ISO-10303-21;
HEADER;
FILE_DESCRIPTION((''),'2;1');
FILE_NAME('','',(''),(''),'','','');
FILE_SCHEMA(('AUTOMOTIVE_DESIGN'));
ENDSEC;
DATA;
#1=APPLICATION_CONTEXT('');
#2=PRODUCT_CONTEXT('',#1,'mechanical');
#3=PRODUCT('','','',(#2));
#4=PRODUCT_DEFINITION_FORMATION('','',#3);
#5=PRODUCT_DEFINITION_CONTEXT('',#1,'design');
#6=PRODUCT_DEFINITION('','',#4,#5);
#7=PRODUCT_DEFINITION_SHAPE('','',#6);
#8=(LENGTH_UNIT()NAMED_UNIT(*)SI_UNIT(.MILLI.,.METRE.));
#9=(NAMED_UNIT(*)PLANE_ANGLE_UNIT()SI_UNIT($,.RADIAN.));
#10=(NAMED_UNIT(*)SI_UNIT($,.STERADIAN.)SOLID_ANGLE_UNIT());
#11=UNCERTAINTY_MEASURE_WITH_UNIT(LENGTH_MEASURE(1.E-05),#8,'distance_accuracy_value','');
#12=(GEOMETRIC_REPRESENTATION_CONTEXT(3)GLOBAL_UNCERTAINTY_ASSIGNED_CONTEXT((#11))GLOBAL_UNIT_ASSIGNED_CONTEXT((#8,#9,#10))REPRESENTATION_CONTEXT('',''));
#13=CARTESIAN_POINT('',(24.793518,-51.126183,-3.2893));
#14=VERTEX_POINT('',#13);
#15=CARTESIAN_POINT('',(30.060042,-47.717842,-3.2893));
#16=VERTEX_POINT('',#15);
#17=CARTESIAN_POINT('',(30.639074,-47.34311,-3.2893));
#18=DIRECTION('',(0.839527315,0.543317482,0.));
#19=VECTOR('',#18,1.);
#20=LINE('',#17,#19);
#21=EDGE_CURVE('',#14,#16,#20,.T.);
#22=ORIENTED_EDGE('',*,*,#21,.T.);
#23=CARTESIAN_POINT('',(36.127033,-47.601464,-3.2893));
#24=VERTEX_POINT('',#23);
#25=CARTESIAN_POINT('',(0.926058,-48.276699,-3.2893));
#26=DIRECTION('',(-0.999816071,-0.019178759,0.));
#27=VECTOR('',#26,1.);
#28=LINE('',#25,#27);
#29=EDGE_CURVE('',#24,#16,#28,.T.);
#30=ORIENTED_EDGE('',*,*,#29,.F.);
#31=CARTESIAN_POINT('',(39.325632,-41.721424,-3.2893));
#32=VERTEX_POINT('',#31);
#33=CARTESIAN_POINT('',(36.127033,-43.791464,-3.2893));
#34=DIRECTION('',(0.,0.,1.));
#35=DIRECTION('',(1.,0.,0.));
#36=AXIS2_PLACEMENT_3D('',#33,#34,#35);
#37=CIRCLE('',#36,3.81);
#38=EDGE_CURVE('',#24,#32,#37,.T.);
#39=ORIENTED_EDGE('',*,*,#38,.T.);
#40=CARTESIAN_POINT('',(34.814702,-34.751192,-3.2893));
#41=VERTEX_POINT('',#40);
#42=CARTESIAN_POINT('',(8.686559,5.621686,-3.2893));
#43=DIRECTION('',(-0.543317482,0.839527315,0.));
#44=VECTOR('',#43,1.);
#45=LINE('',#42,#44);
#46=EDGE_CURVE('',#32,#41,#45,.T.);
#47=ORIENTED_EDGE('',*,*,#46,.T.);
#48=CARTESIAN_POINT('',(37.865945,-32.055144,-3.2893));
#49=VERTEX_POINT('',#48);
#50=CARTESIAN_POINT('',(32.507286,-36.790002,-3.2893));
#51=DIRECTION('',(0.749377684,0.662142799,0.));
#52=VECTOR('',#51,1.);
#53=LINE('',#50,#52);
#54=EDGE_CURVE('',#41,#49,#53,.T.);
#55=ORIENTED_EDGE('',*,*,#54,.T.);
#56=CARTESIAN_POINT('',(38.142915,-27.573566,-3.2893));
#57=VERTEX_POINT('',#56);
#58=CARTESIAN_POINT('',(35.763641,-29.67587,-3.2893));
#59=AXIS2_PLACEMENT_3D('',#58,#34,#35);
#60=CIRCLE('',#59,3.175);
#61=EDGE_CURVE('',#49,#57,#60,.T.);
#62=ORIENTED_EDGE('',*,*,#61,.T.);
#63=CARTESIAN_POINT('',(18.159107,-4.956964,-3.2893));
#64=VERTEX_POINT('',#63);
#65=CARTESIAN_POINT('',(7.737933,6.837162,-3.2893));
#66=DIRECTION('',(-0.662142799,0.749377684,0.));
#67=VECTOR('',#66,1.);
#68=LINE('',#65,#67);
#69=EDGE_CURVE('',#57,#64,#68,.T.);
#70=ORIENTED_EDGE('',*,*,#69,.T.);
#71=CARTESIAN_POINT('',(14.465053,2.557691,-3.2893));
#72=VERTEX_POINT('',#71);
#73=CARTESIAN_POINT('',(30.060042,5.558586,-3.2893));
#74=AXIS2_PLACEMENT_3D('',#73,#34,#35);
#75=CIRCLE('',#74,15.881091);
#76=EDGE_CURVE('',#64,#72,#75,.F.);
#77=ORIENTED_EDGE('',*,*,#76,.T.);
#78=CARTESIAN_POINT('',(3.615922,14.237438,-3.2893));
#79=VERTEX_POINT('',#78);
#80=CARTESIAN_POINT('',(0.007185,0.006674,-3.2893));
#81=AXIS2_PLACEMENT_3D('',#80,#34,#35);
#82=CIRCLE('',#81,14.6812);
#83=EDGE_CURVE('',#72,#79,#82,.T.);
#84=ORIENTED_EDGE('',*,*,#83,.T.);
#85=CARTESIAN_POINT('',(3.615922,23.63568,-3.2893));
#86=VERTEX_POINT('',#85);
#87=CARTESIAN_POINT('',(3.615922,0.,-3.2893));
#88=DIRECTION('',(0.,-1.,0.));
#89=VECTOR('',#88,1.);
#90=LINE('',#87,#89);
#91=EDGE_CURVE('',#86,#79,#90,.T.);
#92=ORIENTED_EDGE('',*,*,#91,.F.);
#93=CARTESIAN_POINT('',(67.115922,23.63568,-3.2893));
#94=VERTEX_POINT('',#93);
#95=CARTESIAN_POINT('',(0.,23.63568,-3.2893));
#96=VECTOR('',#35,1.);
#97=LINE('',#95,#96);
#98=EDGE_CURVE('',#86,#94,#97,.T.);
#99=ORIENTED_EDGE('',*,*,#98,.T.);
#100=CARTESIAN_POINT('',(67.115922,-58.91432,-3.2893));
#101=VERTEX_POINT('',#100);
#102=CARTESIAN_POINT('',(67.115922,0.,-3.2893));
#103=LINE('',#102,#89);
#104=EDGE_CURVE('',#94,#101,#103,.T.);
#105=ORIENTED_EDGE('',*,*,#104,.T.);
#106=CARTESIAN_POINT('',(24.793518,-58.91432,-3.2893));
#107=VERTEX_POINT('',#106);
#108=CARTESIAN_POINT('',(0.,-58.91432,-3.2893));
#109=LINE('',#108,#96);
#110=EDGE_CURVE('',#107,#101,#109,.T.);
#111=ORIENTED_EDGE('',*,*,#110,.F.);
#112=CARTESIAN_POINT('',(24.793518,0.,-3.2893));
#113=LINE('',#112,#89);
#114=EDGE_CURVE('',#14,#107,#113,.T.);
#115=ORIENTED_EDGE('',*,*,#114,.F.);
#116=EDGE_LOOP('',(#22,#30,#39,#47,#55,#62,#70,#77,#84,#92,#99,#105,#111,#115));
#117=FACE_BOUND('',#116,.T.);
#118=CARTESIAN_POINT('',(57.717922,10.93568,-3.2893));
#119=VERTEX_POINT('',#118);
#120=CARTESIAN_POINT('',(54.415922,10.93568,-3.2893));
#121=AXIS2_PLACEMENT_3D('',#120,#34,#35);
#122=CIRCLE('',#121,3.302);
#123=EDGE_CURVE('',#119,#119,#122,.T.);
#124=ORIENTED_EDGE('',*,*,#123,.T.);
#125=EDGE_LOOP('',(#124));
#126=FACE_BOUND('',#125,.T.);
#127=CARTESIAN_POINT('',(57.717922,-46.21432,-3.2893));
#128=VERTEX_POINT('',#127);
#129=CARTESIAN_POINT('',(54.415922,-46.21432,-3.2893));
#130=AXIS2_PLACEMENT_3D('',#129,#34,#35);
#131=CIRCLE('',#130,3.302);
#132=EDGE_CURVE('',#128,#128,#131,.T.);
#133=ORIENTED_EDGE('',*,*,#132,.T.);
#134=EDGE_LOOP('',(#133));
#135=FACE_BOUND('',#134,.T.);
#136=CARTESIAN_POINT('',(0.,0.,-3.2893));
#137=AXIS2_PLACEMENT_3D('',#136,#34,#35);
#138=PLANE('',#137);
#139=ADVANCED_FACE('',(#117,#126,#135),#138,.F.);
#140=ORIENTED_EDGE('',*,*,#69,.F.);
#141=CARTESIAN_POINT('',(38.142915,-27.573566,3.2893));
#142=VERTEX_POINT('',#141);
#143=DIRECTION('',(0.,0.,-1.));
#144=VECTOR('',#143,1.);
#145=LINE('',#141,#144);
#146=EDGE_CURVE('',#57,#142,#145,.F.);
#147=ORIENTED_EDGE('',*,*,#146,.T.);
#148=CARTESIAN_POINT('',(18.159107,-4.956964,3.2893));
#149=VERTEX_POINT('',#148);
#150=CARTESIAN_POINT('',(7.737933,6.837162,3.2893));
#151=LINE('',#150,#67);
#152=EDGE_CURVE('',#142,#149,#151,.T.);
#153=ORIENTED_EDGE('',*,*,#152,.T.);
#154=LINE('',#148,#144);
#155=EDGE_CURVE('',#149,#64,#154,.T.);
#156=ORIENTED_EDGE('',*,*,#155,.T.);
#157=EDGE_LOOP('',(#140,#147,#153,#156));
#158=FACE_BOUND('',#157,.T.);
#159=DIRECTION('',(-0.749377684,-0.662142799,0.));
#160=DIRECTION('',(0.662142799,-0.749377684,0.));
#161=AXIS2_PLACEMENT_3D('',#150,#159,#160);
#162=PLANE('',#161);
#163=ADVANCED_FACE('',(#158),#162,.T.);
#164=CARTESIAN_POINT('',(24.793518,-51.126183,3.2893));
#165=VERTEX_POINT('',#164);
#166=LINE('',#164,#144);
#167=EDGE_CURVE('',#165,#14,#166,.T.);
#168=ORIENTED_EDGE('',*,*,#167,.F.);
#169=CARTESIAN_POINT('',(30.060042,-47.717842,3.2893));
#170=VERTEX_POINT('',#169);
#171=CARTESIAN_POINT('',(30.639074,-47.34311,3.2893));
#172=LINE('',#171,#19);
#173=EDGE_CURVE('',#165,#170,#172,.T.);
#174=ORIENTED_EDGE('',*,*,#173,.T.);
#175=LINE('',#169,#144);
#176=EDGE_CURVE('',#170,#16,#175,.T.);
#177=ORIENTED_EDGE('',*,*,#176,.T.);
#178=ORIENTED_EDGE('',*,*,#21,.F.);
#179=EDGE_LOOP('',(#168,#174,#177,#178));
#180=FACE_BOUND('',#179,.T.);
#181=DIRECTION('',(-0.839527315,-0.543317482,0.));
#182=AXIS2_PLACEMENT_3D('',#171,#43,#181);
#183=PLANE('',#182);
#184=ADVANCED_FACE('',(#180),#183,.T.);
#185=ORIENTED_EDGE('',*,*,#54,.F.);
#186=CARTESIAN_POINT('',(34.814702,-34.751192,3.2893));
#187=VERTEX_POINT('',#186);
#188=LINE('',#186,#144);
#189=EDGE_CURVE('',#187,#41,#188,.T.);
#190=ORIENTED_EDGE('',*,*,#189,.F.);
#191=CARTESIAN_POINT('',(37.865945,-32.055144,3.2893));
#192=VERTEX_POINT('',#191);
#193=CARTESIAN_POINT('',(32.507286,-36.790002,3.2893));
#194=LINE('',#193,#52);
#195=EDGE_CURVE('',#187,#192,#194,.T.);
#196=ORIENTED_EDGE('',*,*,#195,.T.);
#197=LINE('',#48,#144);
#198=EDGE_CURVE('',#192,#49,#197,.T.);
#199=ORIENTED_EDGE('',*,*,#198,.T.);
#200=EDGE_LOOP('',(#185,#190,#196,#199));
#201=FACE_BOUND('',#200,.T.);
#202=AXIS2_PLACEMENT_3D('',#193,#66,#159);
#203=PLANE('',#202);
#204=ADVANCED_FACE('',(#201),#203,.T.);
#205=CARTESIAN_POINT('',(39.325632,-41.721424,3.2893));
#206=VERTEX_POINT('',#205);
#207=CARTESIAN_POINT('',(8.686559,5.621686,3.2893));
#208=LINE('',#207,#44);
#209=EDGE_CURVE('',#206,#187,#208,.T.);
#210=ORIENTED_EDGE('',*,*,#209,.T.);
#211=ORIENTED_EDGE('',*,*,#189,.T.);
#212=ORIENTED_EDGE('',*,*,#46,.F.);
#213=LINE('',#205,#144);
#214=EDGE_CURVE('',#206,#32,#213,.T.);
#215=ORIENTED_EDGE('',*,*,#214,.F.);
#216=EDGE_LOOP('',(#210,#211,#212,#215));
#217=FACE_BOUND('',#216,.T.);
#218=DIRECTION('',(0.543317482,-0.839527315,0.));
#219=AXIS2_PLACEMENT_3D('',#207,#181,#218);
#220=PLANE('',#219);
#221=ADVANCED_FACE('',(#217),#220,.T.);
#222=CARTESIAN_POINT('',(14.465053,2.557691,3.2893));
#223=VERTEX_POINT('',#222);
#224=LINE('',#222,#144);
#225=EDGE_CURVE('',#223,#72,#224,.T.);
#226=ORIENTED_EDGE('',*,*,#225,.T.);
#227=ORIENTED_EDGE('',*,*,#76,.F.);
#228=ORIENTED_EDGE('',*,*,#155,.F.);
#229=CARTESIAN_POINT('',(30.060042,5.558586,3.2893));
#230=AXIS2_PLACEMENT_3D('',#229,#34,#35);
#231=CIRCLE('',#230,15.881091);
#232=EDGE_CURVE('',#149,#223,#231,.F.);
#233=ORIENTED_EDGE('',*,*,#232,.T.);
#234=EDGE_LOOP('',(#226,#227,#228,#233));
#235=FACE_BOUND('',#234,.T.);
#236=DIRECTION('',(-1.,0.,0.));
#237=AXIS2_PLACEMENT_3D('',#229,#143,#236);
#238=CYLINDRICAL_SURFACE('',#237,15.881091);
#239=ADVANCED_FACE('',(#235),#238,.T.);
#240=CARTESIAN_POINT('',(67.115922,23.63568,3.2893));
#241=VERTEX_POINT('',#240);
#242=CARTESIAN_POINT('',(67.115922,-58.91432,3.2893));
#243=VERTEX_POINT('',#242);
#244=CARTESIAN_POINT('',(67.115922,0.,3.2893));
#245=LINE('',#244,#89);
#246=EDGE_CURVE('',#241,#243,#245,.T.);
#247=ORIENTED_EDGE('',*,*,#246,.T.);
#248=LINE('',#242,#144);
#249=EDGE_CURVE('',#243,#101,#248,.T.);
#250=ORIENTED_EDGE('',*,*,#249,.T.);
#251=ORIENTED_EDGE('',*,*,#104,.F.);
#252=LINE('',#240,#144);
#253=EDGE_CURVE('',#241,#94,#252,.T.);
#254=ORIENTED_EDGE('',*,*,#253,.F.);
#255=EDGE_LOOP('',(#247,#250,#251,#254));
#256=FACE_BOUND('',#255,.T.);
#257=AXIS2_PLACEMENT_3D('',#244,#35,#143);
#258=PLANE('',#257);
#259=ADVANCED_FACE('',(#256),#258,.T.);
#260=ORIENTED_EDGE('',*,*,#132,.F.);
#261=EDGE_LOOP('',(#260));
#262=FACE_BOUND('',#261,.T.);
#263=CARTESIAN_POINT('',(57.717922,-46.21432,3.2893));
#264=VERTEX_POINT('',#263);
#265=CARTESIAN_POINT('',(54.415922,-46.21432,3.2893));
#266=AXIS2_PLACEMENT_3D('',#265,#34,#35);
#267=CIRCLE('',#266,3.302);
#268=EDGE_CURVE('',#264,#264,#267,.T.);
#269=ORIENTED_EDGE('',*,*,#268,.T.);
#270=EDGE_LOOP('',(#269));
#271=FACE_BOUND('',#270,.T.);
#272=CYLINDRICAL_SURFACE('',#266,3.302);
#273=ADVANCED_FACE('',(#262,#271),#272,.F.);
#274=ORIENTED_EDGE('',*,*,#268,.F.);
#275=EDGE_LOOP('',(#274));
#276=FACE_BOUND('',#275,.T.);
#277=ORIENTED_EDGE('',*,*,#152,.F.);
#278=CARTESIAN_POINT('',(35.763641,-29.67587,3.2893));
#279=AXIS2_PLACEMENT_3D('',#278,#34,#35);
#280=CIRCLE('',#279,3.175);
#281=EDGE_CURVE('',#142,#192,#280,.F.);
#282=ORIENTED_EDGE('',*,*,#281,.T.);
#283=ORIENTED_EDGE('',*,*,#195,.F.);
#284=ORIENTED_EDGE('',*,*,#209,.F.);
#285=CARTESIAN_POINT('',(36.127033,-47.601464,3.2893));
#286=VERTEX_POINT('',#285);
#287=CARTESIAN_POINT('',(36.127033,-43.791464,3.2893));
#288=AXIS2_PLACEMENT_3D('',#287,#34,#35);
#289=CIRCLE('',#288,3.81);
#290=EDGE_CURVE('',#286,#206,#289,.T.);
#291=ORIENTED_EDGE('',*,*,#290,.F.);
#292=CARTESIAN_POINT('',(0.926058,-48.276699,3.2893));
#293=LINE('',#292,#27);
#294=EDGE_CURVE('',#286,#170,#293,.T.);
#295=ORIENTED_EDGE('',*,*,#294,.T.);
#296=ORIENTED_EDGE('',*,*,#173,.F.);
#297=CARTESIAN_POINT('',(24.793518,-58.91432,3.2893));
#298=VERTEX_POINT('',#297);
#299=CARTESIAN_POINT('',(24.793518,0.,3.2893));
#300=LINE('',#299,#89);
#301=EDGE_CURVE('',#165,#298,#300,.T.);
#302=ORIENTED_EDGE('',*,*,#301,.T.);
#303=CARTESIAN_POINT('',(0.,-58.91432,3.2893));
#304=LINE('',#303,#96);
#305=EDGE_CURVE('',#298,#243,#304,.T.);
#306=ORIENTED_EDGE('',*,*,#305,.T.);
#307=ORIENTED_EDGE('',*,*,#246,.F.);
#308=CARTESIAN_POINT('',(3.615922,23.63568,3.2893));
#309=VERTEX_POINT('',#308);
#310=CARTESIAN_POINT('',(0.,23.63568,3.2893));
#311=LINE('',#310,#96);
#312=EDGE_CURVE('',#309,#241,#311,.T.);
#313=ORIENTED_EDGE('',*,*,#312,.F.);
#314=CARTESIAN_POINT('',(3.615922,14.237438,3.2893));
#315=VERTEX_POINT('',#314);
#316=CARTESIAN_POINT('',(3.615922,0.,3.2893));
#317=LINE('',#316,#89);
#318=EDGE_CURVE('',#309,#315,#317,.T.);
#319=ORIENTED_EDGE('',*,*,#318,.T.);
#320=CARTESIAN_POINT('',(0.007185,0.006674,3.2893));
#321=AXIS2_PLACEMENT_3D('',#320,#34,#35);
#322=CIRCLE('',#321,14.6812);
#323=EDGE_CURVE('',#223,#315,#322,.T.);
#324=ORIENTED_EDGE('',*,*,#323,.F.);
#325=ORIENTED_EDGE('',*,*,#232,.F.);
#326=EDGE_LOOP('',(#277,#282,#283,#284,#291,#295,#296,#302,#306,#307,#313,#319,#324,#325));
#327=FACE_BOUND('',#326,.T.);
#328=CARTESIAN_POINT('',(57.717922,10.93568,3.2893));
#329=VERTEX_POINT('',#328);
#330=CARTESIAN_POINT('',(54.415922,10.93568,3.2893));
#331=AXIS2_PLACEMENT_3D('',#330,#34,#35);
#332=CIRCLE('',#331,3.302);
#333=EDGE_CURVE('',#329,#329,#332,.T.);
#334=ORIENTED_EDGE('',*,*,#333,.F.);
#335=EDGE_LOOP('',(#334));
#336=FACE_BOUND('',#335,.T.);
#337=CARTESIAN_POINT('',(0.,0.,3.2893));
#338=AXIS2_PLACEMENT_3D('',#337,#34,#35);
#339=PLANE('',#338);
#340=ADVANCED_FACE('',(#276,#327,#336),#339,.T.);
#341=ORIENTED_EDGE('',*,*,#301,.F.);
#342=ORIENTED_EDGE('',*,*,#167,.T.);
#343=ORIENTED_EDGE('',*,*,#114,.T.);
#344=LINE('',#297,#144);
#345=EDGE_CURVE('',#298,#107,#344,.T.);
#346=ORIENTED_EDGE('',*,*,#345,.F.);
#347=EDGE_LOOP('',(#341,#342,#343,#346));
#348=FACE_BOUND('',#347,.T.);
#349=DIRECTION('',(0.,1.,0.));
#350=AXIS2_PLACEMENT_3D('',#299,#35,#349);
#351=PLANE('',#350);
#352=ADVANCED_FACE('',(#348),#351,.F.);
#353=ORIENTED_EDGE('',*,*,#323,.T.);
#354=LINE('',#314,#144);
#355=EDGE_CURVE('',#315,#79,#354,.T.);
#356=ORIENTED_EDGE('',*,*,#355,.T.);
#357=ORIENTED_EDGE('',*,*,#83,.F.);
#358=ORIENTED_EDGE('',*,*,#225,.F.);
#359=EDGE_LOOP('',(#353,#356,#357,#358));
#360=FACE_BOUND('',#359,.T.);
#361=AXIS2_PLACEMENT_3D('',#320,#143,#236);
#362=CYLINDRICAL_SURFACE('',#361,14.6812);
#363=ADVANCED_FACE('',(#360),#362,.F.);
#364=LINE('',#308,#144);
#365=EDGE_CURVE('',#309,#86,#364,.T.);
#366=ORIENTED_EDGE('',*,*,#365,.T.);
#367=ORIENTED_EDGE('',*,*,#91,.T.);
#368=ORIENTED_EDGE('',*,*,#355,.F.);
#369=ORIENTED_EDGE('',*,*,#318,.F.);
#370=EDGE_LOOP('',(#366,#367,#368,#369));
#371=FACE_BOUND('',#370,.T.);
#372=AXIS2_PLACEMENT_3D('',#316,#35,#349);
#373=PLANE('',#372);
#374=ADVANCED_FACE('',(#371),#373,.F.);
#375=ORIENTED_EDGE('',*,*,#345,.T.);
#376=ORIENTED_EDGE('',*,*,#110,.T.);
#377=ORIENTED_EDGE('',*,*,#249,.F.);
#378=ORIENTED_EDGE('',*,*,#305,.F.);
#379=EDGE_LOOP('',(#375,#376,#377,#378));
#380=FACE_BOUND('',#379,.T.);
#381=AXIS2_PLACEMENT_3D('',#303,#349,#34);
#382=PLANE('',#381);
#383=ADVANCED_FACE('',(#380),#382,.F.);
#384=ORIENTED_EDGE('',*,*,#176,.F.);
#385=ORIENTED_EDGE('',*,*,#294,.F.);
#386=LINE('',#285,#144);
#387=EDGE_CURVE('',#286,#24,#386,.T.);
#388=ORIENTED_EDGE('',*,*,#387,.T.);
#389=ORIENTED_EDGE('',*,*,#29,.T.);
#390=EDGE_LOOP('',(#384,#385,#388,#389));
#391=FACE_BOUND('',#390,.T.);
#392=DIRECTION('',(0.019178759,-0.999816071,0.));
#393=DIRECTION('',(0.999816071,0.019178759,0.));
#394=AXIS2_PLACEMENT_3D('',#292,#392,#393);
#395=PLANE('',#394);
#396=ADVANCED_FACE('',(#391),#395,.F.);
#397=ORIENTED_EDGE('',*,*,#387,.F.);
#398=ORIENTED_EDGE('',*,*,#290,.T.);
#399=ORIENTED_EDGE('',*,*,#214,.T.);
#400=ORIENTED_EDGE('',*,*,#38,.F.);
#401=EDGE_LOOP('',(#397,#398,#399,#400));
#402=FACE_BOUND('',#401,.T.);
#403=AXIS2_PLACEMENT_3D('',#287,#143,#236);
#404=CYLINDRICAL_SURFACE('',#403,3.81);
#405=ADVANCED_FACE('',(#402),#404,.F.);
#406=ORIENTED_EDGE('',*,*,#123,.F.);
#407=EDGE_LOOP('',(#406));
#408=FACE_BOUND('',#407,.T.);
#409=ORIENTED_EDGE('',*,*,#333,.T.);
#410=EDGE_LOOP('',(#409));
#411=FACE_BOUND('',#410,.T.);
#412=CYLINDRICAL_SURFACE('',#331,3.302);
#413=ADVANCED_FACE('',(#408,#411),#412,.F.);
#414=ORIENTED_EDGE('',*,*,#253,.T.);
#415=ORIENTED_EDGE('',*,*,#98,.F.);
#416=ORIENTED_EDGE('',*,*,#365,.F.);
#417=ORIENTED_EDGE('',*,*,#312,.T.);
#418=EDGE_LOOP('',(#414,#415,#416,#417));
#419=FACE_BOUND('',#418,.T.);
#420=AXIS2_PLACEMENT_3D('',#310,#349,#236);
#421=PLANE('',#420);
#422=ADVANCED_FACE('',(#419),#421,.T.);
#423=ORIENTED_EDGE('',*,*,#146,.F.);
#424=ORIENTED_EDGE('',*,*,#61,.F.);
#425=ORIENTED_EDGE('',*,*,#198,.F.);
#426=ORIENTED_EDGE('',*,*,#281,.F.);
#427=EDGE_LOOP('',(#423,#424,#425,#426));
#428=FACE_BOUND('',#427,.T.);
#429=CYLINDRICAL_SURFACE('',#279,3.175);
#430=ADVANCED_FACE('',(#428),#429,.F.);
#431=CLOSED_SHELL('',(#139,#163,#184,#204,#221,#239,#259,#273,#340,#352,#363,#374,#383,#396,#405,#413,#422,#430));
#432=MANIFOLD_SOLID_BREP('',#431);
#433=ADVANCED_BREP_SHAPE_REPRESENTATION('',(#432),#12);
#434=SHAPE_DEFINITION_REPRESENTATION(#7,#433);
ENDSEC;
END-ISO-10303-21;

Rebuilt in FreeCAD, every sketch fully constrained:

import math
import FreeCAD as App
import Part
import Sketcher
Q = App.Units.Quantity


def edges_at(feature, points):
    """Names of the edges that pass closest to the given points."""
    edges = feature.Shape.Edges
    near = lambda p: min(range(len(edges)), key=lambda i: edges[i].distToShape(Part.Vertex(*p))[0])
    return sorted({f"Edge{near(p) + 1}" for p in points})

doc = App.newDocument("Part")
body = doc.addObject("PartDesign::Body", "Body")

sketch1 = body.newObject("Sketcher::SketchObject", "Sketch")
sketch1.AttachmentSupport = (doc.getObject("XY_Plane"), [""])
sketch1.MapMode = "FlatFace"
sketch1.addGeometry([
    Part.LineSegment(App.Vector(40.2, -30, 0), App.Vector(34.8, -34.8, 0)),
    Part.LineSegment(App.Vector(34.8, -34.8, 0), App.Vector(36.9, -37.9, 0)),
    Part.LineSegment(App.Vector(36.9, -37.9, 0), App.Vector(39.3, -41.7, 0)),
    Part.ArcOfCircle(Part.Circle(App.Vector(36.1, -43.8, 0), App.Vector(0, 0, 1), 3.8), math.radians(-90), math.radians(33)),
    Part.LineSegment(App.Vector(36.1, -47.6, 0), App.Vector(30.1, -47.7, 0)),
    Part.LineSegment(App.Vector(30.1, -47.7, 0), App.Vector(24.8, -51.1, 0)),
    Part.LineSegment(App.Vector(24.8, -51.1, 0), App.Vector(24.8, -58.9, 0)),
    Part.LineSegment(App.Vector(24.8, -58.9, 0), App.Vector(67.1, -58.9, 0)),
    Part.LineSegment(App.Vector(67.1, -58.9, 0), App.Vector(67.1, 23.6, 0)),
    Part.LineSegment(App.Vector(67.1, 23.6, 0), App.Vector(3.6, 23.6, 0)),
    Part.LineSegment(App.Vector(3.6, 23.6, 0), App.Vector(3.6, 14.2, 0)),
    Part.ArcOfCircle(Part.Circle(App.Vector(0, 0, 0), App.Vector(0, 0, 1), 14.7), math.radians(10), math.radians(76)),
    Part.ArcOfCircle(Part.Circle(App.Vector(30.1, 5.6, 0), App.Vector(0, 0, 1), 15.9), math.radians(-169), math.radians(-139)),
    Part.LineSegment(App.Vector(18.2, -5, 0), App.Vector(40.2, -30, 0)),
], False)
sketch1.addConstraint([
    Sketcher.Constraint("Coincident", 0, 2, 1, 1),
    Sketcher.Constraint("Coincident", 1, 2, 2, 1),
    Sketcher.Constraint("Tangent", 2, 2, 3, 2),
    Sketcher.Constraint("Coincident", 3, 1, 4, 1),
    Sketcher.Constraint("Coincident", 4, 2, 5, 1),
    Sketcher.Constraint("Coincident", 5, 2, 6, 1),
    Sketcher.Constraint("Coincident", 6, 2, 7, 1),
    Sketcher.Constraint("Coincident", 7, 2, 8, 1),
    Sketcher.Constraint("Coincident", 8, 2, 9, 1),
    Sketcher.Constraint("Coincident", 9, 2, 10, 1),
    Sketcher.Constraint("Coincident", 10, 2, 11, 2),
    Sketcher.Constraint("Coincident", 11, 1, 12, 1),
    Sketcher.Constraint("Tangent", 12, 2, 13, 1),
    Sketcher.Constraint("Coincident", 13, 2, 0, 1),
    Sketcher.Constraint("Vertical", 6),
    Sketcher.Constraint("Horizontal", 7),
    Sketcher.Constraint("Vertical", 8),
    Sketcher.Constraint("Horizontal", 9),
    Sketcher.Constraint("Vertical", 10),
    Sketcher.Constraint("Parallel", 1, 2),
    Sketcher.Constraint("Perpendicular", 2, 5),
    Sketcher.Constraint("Perpendicular", 0, 13),
    Sketcher.Constraint("Vertical", 12, 3, 4, 2),
    Sketcher.Constraint("Radius", 3, Q("0.15 in")),
    Sketcher.Constraint("DistanceX", 9, 2, 9, 1, Q("2.5 in")),
    Sketcher.Constraint("DistanceY", 8, 1, 8, 2, Q("3.25 in")),
    Sketcher.Constraint("DistanceY", 2, 2, 1, 2, Q("0.15 in")),
    Sketcher.Constraint("Radius", 11, 14.678488),
    Sketcher.Constraint("Radius", 12, 15.881091),
    Sketcher.Constraint("DistanceX", 0, 2, 13, 2, Q("0.2137999 in")),
    Sketcher.Constraint("Distance", 0, 7.246702),
    Sketcher.Constraint("Distance", 1, 3.7643),
    Sketcher.Constraint("DistanceY", 10, 2, 10, 1, 9.399139),
    Sketcher.Constraint("DistanceX", 3, 3, 2, 2, 3.198599),
    Sketcher.Constraint("DistanceX", 3, 1, 2, 2, 3.198599),
    Sketcher.Constraint("Distance", 13, 33.355512),
    Sketcher.Constraint("DistanceX", 7, 1, 7, 2, 42.322405),
    Sketcher.Constraint("DistanceY", 6, 2, 6, 1, 7.788137),
    Sketcher.Constraint("DistanceY", 0, 2, -1, 1, 34.751192),
    Sketcher.Constraint("DistanceY", 6, 2, -1, 1, 58.91432),
    Sketcher.Constraint("DistanceY", -1, 1, 11, 1, 2.557691),
    Sketcher.Constraint("DistanceX", -1, 1, 13, 2, 40.245219),
    Sketcher.Constraint("DistanceY", 4, 2, 3, 1, 0.116379),
])
pad1 = body.newObject("PartDesign::Pad", "Pad")
pad1.Profile = sketch1
pad1.Length = Q("0.259 in")
pad1.Midplane = True
doc.recompute()

fillet = body.newObject("PartDesign::Fillet", "Fillet")
fillet.Base = (pad1, edges_at(pad1, [(40.245, -29.953, 0)]))
fillet.Radius = Q("0.125 in")

sketch2 = body.newObject("Sketcher::SketchObject", "Sketch001")
sketch2.AttachmentSupport = (doc.getObject("XY_Plane"), [""])
sketch2.MapMode = "FlatFace"
sketch2.AttachmentOffset = App.Placement(App.Vector(0, 0, 0.1295 * 25.4), App.Rotation())
sketch2.addGeometry([
    Part.Circle(App.Vector(54.4, 10.9, 0), App.Vector(0, 0, 1), 3.3),
    Part.Circle(App.Vector(54.4, -46.2, 0), App.Vector(0, 0, 1), 3.3),
], False)
sketch2.addConstraint([
    Sketcher.Constraint("Equal", 0, 1),
    Sketcher.Constraint("Vertical", 0, 3, 1, 3),
    Sketcher.Constraint("Diameter", 0, Q("0.26 in")),
    Sketcher.Constraint("DistanceY", 1, 3, 0, 3, Q("2.25 in")),
    Sketcher.Constraint("DistanceY", -1, 1, 0, 3, 10.93568),
    Sketcher.Constraint("DistanceX", -1, 1, 0, 3, 54.415922),
])
doc.recompute()
hole = body.newObject("PartDesign::Hole", "Hole")
hole.Profile = sketch2
hole.ThreadType = "None"
hole.Diameter = Q("0.26 in")
hole.DepthType = "ThroughAll"

doc.recompute()
